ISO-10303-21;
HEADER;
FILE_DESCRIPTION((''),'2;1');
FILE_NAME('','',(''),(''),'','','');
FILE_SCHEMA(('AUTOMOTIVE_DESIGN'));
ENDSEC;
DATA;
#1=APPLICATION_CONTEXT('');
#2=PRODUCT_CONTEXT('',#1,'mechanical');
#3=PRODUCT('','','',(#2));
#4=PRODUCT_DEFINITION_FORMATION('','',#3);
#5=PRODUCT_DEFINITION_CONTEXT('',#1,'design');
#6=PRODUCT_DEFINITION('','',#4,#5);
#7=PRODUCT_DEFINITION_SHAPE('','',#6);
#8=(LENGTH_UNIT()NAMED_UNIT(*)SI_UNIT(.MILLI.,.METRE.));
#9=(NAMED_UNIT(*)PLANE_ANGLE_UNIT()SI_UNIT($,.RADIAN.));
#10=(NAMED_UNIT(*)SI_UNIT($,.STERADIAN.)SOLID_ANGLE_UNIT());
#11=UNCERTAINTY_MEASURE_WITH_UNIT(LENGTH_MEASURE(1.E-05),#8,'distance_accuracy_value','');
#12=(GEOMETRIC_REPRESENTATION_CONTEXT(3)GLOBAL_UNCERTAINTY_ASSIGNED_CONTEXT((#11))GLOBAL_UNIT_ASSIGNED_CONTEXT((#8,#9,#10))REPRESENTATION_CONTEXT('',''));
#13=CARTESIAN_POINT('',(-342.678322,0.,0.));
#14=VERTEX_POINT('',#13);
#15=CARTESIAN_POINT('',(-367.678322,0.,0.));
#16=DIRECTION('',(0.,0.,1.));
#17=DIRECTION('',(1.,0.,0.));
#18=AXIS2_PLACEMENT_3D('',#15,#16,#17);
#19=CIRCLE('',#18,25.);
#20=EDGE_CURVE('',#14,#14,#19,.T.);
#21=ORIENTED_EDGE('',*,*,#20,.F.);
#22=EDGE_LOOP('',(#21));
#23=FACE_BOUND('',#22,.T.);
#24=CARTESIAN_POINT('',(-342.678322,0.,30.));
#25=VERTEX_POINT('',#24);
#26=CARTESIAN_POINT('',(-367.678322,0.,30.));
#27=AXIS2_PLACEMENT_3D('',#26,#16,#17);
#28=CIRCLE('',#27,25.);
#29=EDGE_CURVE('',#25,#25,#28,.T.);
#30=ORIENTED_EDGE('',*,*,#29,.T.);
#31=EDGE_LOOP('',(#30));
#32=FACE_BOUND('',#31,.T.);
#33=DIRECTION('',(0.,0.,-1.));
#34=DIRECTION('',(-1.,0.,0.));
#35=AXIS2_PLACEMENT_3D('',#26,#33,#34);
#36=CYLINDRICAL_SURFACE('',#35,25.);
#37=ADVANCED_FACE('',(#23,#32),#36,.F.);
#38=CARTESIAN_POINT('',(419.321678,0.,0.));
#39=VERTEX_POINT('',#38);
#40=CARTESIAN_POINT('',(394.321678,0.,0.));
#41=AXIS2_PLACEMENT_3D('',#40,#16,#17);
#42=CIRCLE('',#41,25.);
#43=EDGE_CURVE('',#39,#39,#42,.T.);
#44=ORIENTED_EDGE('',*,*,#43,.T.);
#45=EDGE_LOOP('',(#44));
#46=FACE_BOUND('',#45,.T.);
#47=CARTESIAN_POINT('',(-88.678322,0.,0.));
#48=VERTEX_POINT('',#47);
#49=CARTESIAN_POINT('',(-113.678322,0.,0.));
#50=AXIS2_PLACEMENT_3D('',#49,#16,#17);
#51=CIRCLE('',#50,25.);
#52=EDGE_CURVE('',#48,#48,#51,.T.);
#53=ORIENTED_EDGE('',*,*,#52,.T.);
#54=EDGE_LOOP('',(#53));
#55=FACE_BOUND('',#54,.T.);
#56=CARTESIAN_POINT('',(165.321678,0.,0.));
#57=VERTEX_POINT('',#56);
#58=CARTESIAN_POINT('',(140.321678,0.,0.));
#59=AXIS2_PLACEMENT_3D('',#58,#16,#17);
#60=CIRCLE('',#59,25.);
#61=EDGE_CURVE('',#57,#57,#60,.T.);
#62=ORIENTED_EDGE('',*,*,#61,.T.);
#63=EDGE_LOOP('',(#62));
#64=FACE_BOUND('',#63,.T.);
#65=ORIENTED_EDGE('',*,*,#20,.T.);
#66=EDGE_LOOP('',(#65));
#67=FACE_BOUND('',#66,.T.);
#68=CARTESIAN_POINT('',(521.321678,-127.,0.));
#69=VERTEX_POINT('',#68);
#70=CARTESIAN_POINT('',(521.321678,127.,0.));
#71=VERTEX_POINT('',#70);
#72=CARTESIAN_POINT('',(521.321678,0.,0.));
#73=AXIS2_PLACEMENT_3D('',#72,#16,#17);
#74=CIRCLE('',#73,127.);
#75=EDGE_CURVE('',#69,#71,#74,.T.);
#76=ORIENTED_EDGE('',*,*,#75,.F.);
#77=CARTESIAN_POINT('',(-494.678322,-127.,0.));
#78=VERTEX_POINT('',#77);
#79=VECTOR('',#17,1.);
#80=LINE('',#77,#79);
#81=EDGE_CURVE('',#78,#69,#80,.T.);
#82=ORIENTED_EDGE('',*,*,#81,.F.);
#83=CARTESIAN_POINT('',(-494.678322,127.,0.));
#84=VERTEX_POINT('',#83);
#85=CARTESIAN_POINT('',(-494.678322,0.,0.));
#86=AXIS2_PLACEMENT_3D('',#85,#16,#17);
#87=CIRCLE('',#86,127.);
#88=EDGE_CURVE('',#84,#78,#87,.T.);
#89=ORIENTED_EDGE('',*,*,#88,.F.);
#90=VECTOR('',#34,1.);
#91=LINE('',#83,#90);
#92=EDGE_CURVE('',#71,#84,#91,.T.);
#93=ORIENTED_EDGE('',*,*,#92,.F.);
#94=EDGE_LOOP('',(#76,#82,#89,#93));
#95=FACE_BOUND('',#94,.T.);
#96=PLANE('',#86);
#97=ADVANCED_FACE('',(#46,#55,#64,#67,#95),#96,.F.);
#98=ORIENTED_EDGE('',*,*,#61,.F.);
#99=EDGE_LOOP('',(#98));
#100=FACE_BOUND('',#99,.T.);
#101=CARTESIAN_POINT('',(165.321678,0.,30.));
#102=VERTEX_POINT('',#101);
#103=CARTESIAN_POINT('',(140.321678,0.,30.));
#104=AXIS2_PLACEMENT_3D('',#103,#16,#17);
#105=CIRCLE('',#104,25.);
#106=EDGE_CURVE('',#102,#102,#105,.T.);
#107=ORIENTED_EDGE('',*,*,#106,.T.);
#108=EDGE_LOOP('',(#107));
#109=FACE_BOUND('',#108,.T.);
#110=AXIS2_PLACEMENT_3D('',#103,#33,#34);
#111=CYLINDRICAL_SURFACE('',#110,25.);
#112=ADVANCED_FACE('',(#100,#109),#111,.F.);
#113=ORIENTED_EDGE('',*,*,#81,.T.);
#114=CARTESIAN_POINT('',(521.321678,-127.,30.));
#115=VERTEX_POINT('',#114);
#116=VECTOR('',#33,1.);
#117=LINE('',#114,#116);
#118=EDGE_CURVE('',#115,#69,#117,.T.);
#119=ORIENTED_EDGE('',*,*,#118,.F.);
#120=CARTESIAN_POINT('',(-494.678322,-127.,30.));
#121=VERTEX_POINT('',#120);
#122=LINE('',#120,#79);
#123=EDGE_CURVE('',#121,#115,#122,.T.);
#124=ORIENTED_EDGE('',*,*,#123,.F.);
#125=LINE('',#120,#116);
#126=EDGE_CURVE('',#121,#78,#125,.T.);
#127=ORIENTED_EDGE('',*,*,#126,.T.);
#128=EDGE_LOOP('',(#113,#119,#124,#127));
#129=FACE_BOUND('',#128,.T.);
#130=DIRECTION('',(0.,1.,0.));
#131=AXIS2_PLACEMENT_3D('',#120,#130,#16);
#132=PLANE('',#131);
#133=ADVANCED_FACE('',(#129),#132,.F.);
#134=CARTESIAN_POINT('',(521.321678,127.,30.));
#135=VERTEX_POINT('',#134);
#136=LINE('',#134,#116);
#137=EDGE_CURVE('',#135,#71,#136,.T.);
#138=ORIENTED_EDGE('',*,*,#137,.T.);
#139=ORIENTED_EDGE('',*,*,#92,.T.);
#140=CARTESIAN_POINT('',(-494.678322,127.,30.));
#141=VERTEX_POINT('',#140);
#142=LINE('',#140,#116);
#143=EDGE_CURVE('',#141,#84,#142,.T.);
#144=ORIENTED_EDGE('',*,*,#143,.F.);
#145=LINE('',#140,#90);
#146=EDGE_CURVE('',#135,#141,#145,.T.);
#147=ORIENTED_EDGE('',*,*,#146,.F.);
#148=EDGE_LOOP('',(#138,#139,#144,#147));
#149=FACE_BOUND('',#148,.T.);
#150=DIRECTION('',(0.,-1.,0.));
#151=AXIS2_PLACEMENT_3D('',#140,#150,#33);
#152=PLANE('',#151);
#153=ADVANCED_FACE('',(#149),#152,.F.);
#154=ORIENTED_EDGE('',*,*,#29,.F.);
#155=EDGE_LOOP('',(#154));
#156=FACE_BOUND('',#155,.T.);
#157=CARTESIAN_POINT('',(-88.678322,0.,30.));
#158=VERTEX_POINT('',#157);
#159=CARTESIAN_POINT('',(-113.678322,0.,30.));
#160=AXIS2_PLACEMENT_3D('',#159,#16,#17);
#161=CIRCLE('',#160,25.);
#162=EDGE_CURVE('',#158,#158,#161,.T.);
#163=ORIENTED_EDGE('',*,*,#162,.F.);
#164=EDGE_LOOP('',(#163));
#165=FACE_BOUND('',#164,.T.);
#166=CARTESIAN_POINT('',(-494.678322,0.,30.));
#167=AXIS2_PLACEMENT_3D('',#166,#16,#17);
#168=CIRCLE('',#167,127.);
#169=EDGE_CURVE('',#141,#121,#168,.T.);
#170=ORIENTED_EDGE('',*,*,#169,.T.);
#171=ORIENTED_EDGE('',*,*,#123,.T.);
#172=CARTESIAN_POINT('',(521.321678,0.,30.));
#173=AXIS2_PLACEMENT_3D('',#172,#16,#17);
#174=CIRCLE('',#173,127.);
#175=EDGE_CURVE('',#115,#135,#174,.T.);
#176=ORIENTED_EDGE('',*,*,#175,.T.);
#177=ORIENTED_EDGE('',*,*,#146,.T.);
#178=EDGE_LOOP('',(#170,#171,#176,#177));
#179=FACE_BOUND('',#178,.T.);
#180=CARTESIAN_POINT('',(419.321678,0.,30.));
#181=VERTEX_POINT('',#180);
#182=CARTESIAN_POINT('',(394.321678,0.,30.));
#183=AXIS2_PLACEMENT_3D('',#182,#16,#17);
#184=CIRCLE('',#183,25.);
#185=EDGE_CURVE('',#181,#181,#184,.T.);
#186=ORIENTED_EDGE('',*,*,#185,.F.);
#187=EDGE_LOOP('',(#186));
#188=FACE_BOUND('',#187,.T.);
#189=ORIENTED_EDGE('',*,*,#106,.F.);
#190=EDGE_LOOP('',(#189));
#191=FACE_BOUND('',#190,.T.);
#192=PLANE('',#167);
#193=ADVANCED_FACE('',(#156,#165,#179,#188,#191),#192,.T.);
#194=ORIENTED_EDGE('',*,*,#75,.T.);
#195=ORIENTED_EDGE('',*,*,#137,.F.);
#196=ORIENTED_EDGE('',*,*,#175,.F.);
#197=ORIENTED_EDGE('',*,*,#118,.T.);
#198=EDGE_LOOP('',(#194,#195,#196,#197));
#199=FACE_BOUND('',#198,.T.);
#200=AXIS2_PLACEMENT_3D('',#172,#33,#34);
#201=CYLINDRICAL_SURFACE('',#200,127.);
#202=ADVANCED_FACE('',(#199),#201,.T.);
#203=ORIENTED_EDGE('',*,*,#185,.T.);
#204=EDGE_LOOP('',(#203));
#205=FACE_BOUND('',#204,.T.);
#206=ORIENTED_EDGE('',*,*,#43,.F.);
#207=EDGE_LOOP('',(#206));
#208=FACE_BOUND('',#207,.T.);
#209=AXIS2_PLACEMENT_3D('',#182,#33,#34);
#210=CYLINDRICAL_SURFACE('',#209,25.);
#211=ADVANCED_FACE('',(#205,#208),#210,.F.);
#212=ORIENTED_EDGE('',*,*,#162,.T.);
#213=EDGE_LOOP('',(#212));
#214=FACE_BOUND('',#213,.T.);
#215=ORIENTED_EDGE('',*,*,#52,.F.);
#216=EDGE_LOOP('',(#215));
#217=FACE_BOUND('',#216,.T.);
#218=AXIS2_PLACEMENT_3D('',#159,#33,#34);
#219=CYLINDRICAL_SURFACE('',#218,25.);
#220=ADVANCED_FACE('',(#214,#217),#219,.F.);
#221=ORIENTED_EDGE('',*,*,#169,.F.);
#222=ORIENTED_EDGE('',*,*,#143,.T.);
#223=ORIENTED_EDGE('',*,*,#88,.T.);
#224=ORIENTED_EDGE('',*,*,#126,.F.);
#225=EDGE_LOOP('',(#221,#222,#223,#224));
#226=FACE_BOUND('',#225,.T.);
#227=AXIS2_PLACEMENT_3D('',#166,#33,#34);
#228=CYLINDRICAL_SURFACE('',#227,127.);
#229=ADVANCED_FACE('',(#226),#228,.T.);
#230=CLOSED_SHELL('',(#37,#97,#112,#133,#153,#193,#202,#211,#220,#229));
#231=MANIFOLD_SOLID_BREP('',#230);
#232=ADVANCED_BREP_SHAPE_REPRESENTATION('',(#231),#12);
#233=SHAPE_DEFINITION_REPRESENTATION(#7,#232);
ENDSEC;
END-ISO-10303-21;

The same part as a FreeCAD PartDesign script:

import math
import FreeCAD as App
import Part
import Sketcher
from FreeCAD import Vector
Q = App.Units.Quantity

doc = App.newDocument("Part")
body = doc.addObject("PartDesign::Body", "Body")

sketch1 = body.newObject("Sketcher::SketchObject", "Sketch")
sketch1.AttachmentSupport = (doc.getObject("XY_Plane"), [""])
sketch1.MapMode = "FlatFace"
sketch1.addGeometry(Part.LineSegment(Vector(521, 127, 0), Vector(-495, 127, 0)), False)
sketch1.addGeometry(Part.ArcOfCircle(Part.Circle(Vector(-495, 0, 0), Vector(0, 0, 1), 127), math.radians(90), math.radians(270)), False)
sketch1.addGeometry(Part.LineSegment(Vector(-495, -127, 0), Vector(521, -127, 0)), False)
sketch1.addGeometry(Part.ArcOfCircle(Part.Circle(Vector(521, 0, 0), Vector(0, 0, 1), 127), math.radians(-90), math.radians(90)), False)
sketch1.addGeometry(Part.Circle(Vector(394, 0, 0), Vector(0, 0, 1), 25), False)
sketch1.addGeometry(Part.Circle(Vector(140, 0, 0), Vector(0, 0, 1), 25), False)
sketch1.addGeometry(Part.Circle(Vector(-114, 0, 0), Vector(0, 0, 1), 25), False)
sketch1.addGeometry(Part.Circle(Vector(-368, 0, 0), Vector(0, 0, 1), 25), False)
sketch1.addConstraint(Sketcher.Constraint("Tangent", 0, 2, 1, 1))
sketch1.addConstraint(Sketcher.Constraint("Tangent", 1, 2, 2, 1))
sketch1.addConstraint(Sketcher.Constraint("Tangent", 2, 2, 3, 1))
sketch1.addConstraint(Sketcher.Constraint("Tangent", 3, 2, 0, 1))
sketch1.addConstraint(Sketcher.Constraint("Horizontal", 0))
sketch1.addConstraint(Sketcher.Constraint("Horizontal", 2))
sketch1.addConstraint(Sketcher.Constraint("Equal", 4, 5))
sketch1.addConstraint(Sketcher.Constraint("Equal", 5, 6))
sketch1.addConstraint(Sketcher.Constraint("Equal", 6, 7))
sketch1.addConstraint(Sketcher.Constraint("PointOnObject", 1, 3, -1))
sketch1.addConstraint(Sketcher.Constraint("PointOnObject", 4, 3, -1))
sketch1.addConstraint(Sketcher.Constraint("PointOnObject", 5, 3, -1))
sketch1.addConstraint(Sketcher.Constraint("PointOnObject", 6, 3, -1))
sketch1.addConstraint(Sketcher.Constraint("PointOnObject", 7, 3, -1))
sketch1.addConstraint(Sketcher.Constraint("Diameter", 4, Q("50 mm")))
sketch1.addConstraint(Sketcher.Constraint("Radius", 1, Q("127 mm")))
sketch1.addConstraint(Sketcher.Constraint("DistanceX", 0, 2, 0, 1, Q("1016 mm")))
sketch1.addConstraint(Sketcher.Constraint("DistanceX", 4, 3, 3, 3, Q("127 mm")))
sketch1.addConstraint(Sketcher.Constraint("DistanceX", 5, 3, 4, 3, Q("254 mm")))
sketch1.addConstraint(Sketcher.Constraint("DistanceX", 6, 3, 5, 3, Q("254 mm")))
sketch1.addConstraint(Sketcher.Constraint("DistanceX", 1, 3, 7, 3, Q("127 mm")))
sketch1.addConstraint(Sketcher.Constraint("DistanceX", 1, 3, -1, 1, Q("494.678322 mm")))
pad1 = body.newObject("PartDesign::Pad", "Pad")
pad1.Profile = sketch1
pad1.Length = 30

doc.recompute()
